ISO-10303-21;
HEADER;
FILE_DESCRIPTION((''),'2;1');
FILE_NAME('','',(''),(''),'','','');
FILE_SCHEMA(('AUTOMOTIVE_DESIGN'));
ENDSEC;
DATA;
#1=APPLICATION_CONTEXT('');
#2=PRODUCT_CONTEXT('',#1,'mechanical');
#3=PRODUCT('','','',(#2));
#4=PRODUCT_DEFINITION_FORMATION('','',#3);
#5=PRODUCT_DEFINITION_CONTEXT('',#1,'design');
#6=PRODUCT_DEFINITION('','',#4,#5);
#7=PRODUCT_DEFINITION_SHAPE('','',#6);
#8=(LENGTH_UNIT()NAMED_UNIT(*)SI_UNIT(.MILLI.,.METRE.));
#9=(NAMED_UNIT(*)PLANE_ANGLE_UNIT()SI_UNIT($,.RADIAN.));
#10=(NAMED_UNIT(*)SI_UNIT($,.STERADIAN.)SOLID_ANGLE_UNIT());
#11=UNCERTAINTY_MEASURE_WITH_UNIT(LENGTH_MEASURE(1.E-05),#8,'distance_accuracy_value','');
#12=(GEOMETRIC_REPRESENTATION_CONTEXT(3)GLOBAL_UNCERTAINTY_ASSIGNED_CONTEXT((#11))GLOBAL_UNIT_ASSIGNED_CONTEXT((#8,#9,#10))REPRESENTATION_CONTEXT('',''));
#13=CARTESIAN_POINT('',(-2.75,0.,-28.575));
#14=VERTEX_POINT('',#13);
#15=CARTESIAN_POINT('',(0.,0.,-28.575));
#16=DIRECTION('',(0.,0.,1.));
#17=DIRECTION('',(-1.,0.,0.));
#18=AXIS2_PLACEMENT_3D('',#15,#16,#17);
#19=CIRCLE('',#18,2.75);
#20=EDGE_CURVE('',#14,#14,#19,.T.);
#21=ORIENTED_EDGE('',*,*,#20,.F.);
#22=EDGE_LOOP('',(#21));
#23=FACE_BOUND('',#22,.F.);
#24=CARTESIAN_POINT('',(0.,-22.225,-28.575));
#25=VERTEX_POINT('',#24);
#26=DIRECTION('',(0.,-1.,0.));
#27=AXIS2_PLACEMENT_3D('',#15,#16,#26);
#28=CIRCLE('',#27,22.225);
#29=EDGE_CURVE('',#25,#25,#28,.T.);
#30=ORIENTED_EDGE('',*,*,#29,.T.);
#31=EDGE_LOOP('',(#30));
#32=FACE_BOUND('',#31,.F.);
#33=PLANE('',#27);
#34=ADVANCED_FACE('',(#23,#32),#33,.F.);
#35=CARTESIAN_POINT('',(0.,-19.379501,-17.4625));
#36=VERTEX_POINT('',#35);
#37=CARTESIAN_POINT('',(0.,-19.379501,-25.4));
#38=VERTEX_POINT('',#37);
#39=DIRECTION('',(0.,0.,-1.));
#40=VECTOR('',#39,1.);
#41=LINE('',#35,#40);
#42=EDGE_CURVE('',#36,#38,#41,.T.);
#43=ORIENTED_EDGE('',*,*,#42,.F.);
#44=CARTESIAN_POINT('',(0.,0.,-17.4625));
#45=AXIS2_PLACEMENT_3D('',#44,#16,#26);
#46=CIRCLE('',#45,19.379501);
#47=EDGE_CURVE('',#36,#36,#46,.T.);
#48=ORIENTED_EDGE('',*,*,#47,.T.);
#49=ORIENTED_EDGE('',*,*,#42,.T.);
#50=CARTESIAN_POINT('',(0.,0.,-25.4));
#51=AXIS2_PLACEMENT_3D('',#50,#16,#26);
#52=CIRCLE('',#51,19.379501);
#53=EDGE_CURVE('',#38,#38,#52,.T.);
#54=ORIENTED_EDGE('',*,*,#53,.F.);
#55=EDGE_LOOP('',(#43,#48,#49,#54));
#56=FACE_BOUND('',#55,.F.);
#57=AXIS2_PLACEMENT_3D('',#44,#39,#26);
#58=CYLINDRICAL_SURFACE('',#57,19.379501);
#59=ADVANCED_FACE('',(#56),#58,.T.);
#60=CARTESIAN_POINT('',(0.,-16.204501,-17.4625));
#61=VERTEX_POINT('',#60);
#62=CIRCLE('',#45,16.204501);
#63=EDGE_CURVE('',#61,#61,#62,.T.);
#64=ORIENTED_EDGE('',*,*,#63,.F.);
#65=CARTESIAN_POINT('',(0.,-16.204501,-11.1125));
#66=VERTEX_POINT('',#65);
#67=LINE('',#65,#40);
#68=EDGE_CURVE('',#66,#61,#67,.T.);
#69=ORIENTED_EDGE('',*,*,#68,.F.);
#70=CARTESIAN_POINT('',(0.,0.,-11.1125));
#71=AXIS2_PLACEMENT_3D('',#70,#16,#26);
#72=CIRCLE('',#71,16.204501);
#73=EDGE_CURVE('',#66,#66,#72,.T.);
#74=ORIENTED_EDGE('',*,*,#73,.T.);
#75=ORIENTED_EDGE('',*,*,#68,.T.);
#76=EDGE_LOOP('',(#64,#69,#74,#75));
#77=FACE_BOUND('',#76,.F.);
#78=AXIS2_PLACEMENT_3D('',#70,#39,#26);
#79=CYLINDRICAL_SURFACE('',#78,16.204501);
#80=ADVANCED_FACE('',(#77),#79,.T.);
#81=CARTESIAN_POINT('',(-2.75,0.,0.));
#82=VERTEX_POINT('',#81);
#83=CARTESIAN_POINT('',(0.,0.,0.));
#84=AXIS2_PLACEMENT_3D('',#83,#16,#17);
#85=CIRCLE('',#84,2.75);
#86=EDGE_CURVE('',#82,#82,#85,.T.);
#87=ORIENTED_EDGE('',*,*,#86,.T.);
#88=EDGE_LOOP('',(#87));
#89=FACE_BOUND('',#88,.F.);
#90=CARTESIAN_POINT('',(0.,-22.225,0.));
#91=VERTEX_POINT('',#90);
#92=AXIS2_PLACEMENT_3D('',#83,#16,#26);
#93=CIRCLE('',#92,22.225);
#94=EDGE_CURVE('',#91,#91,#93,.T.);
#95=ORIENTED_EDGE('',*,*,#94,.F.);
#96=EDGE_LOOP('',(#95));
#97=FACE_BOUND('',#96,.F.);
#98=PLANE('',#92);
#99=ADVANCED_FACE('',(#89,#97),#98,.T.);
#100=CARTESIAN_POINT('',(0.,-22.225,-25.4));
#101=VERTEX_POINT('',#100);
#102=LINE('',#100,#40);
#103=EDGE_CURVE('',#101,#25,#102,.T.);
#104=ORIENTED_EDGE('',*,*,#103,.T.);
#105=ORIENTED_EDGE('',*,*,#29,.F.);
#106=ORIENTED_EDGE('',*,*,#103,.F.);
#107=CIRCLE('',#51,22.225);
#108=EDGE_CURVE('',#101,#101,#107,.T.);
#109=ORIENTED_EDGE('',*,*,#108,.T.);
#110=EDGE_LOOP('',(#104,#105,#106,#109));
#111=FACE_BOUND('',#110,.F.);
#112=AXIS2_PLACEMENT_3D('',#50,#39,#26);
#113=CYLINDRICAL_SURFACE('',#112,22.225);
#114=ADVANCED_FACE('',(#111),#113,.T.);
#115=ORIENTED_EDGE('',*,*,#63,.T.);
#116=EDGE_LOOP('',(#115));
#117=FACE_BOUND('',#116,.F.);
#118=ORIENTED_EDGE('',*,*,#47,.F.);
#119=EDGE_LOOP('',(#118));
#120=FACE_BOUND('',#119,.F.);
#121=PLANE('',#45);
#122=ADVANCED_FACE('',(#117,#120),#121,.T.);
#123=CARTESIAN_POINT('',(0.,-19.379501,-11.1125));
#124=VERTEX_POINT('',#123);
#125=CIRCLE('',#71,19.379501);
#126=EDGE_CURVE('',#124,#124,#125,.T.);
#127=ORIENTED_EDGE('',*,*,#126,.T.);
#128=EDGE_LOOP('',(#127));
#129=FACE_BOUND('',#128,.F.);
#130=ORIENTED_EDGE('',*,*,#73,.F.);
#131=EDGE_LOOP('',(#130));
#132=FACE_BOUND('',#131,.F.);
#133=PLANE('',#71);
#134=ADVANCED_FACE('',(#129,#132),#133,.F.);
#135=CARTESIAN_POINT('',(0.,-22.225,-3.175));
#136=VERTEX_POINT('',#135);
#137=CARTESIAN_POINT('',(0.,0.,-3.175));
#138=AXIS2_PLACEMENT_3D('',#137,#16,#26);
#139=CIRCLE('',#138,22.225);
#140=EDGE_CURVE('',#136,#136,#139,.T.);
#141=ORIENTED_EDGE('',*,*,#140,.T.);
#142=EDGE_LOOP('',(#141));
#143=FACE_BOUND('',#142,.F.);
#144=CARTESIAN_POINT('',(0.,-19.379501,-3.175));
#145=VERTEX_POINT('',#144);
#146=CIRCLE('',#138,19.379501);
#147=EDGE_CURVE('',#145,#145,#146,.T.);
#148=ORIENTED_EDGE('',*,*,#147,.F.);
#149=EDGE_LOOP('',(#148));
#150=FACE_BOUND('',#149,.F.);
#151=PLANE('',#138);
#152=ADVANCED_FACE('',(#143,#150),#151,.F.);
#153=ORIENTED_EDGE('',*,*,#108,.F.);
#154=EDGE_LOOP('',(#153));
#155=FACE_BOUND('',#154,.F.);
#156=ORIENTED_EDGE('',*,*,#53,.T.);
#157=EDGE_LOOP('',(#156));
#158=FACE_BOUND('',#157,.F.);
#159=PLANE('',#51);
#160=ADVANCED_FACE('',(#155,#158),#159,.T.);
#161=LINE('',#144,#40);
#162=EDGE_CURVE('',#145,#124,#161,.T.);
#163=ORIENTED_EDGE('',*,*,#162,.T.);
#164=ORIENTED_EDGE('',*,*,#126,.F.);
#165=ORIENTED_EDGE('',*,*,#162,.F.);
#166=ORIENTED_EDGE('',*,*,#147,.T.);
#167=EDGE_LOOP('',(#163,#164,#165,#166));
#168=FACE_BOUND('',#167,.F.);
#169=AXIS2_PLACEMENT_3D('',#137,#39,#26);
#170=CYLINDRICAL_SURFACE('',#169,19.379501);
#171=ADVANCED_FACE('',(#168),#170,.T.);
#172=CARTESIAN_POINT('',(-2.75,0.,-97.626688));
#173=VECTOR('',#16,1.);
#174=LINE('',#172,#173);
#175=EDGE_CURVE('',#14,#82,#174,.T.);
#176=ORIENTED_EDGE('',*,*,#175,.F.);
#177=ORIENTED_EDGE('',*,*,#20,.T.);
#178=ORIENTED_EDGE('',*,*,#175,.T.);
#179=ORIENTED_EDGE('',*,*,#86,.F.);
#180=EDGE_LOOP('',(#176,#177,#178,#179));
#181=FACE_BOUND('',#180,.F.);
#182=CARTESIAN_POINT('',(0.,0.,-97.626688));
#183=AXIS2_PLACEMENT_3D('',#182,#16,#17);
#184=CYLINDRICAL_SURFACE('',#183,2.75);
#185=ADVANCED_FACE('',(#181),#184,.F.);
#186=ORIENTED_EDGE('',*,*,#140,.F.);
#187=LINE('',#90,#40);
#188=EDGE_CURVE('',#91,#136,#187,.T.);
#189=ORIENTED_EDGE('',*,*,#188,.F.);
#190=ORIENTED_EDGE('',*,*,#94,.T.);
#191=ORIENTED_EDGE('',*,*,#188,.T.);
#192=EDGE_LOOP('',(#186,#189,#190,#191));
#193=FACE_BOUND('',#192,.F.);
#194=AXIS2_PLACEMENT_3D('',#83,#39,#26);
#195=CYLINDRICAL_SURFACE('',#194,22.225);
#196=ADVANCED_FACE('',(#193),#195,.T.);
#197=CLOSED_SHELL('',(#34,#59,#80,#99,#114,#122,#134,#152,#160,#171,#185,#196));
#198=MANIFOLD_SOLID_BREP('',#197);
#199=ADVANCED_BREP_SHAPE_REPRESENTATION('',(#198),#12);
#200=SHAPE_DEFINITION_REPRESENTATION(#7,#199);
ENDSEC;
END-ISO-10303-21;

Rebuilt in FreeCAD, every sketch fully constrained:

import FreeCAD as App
import Part
import Sketcher
from FreeCAD import Vector
Q = App.Units.Quantity

doc = App.newDocument("Part")
body = doc.addObject("PartDesign::Body", "Body")

sketch1 = body.newObject("Sketcher::SketchObject", "Sketch")
sketch1.AttachmentSupport = (doc.getObject("YZ_Plane"), [""])
sketch1.MapMode = "FlatFace"
sketch1.addGeometry([
    Part.LineSegment(Vector(0, -28.6, 0), Vector(0, 0, 0)),
    Part.LineSegment(Vector(0, 0, 0), Vector(-22.2, 0, 0)),
    Part.LineSegment(Vector(-22.2, 0, 0), Vector(-22.2, -3.2, 0)),
    Part.LineSegment(Vector(-22.2, -3.2, 0), Vector(-19.4, -3.2, 0)),
    Part.LineSegment(Vector(-19.4, -3.2, 0), Vector(-19.4, -11.1, 0)),
    Part.LineSegment(Vector(-19.4, -11.1, 0), Vector(-16.2, -11.1, 0)),
    Part.LineSegment(Vector(-16.2, -11.1, 0), Vector(-16.2, -17.5, 0)),
    Part.LineSegment(Vector(-16.2, -17.5, 0), Vector(-19.4, -17.5, 0)),
    Part.LineSegment(Vector(-19.4, -17.5, 0), Vector(-19.4, -25.4, 0)),
    Part.LineSegment(Vector(-19.4, -25.4, 0), Vector(-22.2, -25.4, 0)),
    Part.LineSegment(Vector(-22.2, -25.4, 0), Vector(-22.2, -28.6, 0)),
    Part.LineSegment(Vector(-22.2, -28.6, 0), Vector(0, -28.6, 0)),
], False)
sketch1.addConstraint([
    Sketcher.Constraint("Coincident", 0, 2, 1, 1),
    Sketcher.Constraint("Coincident", 1, 2, 2, 1),
    Sketcher.Constraint("Coincident", 2, 2, 3, 1),
    Sketcher.Constraint("Coincident", 3, 2, 4, 1),
    Sketcher.Constraint("Coincident", 4, 2, 5, 1),
    Sketcher.Constraint("Coincident", 5, 2, 6, 1),
    Sketcher.Constraint("Coincident", 6, 2, 7, 1),
    Sketcher.Constraint("Coincident", 7, 2, 8, 1),
    Sketcher.Constraint("Coincident", 8, 2, 9, 1),
    Sketcher.Constraint("Coincident", 9, 2, 10, 1),
    Sketcher.Constraint("Coincident", 10, 2, 11, 1),
    Sketcher.Constraint("Coincident", 11, 2, 0, 1),
    Sketcher.Constraint("Vertical", 0),
    Sketcher.Constraint("Horizontal", 1),
    Sketcher.Constraint("Vertical", 2),
    Sketcher.Constraint("Horizontal", 3),
    Sketcher.Constraint("Vertical", 4),
    Sketcher.Constraint("Horizontal", 5),
    Sketcher.Constraint("Vertical", 6),
    Sketcher.Constraint("Horizontal", 7),
    Sketcher.Constraint("Vertical", 8),
    Sketcher.Constraint("Horizontal", 9),
    Sketcher.Constraint("Vertical", 10),
    Sketcher.Constraint("Horizontal", 11),
    Sketcher.Constraint("Coincident", 0, 2, -1, 1),
    Sketcher.Constraint("Vertical", 4, 2, 7, 2),
    Sketcher.Constraint("Vertical", 2, 2, 9, 2),
    Sketcher.Constraint("Equal", 7, 2),
    Sketcher.Constraint("Equal", 4, 8),
    Sketcher.Constraint("Equal", 2, 10),
    Sketcher.Constraint("DistanceY", 8, 2, -1, 1, Q("1 in")),
    Sketcher.Constraint("DistanceY", 6, 2, 6, 1, Q("0.25 in")),
    Sketcher.Constraint("DistanceX", 1, 2, 1, 1, Q("0.875 in")),
    Sketcher.Constraint("DistanceX", 5, 1, 5, 2, Q("0.125 in")),
    Sketcher.Constraint("DistanceX", 3, 1, 3, 2, Q("2.845499 mm")),
])
revolution = body.newObject("PartDesign::Revolution", "Revolution")
revolution.Profile = sketch1
revolution.ReferenceAxis = (sketch1, ["V_Axis"])
revolution.Angle = 360

sketch2 = body.newObject("Sketcher::SketchObject", "Sketch001")
sketch2.AttachmentSupport = (doc.getObject("XY_Plane"), [""])
sketch2.MapMode = "FlatFace"
sketch2.AttachmentOffset = App.Placement(Vector(0, 0, -1.125 * 25.4), App.Rotation())
sketch2.addGeometry(Part.Circle(Vector(0, 0, 0), Vector(0, 0, 1), 2.8), False)
sketch2.addConstraint([
    Sketcher.Constraint("Coincident", 0, 3, -1, 1),
    Sketcher.Constraint("Diameter", 0, Q("5.5 mm")),
])
doc.recompute()
hole = body.newObject("PartDesign::Hole", "Hole")
hole.Profile = sketch2
hole.ThreadType = "None"
hole.Diameter = 5.5
hole.DepthType = "ThroughAll"
hole.Reversed = True

doc.recompute()
